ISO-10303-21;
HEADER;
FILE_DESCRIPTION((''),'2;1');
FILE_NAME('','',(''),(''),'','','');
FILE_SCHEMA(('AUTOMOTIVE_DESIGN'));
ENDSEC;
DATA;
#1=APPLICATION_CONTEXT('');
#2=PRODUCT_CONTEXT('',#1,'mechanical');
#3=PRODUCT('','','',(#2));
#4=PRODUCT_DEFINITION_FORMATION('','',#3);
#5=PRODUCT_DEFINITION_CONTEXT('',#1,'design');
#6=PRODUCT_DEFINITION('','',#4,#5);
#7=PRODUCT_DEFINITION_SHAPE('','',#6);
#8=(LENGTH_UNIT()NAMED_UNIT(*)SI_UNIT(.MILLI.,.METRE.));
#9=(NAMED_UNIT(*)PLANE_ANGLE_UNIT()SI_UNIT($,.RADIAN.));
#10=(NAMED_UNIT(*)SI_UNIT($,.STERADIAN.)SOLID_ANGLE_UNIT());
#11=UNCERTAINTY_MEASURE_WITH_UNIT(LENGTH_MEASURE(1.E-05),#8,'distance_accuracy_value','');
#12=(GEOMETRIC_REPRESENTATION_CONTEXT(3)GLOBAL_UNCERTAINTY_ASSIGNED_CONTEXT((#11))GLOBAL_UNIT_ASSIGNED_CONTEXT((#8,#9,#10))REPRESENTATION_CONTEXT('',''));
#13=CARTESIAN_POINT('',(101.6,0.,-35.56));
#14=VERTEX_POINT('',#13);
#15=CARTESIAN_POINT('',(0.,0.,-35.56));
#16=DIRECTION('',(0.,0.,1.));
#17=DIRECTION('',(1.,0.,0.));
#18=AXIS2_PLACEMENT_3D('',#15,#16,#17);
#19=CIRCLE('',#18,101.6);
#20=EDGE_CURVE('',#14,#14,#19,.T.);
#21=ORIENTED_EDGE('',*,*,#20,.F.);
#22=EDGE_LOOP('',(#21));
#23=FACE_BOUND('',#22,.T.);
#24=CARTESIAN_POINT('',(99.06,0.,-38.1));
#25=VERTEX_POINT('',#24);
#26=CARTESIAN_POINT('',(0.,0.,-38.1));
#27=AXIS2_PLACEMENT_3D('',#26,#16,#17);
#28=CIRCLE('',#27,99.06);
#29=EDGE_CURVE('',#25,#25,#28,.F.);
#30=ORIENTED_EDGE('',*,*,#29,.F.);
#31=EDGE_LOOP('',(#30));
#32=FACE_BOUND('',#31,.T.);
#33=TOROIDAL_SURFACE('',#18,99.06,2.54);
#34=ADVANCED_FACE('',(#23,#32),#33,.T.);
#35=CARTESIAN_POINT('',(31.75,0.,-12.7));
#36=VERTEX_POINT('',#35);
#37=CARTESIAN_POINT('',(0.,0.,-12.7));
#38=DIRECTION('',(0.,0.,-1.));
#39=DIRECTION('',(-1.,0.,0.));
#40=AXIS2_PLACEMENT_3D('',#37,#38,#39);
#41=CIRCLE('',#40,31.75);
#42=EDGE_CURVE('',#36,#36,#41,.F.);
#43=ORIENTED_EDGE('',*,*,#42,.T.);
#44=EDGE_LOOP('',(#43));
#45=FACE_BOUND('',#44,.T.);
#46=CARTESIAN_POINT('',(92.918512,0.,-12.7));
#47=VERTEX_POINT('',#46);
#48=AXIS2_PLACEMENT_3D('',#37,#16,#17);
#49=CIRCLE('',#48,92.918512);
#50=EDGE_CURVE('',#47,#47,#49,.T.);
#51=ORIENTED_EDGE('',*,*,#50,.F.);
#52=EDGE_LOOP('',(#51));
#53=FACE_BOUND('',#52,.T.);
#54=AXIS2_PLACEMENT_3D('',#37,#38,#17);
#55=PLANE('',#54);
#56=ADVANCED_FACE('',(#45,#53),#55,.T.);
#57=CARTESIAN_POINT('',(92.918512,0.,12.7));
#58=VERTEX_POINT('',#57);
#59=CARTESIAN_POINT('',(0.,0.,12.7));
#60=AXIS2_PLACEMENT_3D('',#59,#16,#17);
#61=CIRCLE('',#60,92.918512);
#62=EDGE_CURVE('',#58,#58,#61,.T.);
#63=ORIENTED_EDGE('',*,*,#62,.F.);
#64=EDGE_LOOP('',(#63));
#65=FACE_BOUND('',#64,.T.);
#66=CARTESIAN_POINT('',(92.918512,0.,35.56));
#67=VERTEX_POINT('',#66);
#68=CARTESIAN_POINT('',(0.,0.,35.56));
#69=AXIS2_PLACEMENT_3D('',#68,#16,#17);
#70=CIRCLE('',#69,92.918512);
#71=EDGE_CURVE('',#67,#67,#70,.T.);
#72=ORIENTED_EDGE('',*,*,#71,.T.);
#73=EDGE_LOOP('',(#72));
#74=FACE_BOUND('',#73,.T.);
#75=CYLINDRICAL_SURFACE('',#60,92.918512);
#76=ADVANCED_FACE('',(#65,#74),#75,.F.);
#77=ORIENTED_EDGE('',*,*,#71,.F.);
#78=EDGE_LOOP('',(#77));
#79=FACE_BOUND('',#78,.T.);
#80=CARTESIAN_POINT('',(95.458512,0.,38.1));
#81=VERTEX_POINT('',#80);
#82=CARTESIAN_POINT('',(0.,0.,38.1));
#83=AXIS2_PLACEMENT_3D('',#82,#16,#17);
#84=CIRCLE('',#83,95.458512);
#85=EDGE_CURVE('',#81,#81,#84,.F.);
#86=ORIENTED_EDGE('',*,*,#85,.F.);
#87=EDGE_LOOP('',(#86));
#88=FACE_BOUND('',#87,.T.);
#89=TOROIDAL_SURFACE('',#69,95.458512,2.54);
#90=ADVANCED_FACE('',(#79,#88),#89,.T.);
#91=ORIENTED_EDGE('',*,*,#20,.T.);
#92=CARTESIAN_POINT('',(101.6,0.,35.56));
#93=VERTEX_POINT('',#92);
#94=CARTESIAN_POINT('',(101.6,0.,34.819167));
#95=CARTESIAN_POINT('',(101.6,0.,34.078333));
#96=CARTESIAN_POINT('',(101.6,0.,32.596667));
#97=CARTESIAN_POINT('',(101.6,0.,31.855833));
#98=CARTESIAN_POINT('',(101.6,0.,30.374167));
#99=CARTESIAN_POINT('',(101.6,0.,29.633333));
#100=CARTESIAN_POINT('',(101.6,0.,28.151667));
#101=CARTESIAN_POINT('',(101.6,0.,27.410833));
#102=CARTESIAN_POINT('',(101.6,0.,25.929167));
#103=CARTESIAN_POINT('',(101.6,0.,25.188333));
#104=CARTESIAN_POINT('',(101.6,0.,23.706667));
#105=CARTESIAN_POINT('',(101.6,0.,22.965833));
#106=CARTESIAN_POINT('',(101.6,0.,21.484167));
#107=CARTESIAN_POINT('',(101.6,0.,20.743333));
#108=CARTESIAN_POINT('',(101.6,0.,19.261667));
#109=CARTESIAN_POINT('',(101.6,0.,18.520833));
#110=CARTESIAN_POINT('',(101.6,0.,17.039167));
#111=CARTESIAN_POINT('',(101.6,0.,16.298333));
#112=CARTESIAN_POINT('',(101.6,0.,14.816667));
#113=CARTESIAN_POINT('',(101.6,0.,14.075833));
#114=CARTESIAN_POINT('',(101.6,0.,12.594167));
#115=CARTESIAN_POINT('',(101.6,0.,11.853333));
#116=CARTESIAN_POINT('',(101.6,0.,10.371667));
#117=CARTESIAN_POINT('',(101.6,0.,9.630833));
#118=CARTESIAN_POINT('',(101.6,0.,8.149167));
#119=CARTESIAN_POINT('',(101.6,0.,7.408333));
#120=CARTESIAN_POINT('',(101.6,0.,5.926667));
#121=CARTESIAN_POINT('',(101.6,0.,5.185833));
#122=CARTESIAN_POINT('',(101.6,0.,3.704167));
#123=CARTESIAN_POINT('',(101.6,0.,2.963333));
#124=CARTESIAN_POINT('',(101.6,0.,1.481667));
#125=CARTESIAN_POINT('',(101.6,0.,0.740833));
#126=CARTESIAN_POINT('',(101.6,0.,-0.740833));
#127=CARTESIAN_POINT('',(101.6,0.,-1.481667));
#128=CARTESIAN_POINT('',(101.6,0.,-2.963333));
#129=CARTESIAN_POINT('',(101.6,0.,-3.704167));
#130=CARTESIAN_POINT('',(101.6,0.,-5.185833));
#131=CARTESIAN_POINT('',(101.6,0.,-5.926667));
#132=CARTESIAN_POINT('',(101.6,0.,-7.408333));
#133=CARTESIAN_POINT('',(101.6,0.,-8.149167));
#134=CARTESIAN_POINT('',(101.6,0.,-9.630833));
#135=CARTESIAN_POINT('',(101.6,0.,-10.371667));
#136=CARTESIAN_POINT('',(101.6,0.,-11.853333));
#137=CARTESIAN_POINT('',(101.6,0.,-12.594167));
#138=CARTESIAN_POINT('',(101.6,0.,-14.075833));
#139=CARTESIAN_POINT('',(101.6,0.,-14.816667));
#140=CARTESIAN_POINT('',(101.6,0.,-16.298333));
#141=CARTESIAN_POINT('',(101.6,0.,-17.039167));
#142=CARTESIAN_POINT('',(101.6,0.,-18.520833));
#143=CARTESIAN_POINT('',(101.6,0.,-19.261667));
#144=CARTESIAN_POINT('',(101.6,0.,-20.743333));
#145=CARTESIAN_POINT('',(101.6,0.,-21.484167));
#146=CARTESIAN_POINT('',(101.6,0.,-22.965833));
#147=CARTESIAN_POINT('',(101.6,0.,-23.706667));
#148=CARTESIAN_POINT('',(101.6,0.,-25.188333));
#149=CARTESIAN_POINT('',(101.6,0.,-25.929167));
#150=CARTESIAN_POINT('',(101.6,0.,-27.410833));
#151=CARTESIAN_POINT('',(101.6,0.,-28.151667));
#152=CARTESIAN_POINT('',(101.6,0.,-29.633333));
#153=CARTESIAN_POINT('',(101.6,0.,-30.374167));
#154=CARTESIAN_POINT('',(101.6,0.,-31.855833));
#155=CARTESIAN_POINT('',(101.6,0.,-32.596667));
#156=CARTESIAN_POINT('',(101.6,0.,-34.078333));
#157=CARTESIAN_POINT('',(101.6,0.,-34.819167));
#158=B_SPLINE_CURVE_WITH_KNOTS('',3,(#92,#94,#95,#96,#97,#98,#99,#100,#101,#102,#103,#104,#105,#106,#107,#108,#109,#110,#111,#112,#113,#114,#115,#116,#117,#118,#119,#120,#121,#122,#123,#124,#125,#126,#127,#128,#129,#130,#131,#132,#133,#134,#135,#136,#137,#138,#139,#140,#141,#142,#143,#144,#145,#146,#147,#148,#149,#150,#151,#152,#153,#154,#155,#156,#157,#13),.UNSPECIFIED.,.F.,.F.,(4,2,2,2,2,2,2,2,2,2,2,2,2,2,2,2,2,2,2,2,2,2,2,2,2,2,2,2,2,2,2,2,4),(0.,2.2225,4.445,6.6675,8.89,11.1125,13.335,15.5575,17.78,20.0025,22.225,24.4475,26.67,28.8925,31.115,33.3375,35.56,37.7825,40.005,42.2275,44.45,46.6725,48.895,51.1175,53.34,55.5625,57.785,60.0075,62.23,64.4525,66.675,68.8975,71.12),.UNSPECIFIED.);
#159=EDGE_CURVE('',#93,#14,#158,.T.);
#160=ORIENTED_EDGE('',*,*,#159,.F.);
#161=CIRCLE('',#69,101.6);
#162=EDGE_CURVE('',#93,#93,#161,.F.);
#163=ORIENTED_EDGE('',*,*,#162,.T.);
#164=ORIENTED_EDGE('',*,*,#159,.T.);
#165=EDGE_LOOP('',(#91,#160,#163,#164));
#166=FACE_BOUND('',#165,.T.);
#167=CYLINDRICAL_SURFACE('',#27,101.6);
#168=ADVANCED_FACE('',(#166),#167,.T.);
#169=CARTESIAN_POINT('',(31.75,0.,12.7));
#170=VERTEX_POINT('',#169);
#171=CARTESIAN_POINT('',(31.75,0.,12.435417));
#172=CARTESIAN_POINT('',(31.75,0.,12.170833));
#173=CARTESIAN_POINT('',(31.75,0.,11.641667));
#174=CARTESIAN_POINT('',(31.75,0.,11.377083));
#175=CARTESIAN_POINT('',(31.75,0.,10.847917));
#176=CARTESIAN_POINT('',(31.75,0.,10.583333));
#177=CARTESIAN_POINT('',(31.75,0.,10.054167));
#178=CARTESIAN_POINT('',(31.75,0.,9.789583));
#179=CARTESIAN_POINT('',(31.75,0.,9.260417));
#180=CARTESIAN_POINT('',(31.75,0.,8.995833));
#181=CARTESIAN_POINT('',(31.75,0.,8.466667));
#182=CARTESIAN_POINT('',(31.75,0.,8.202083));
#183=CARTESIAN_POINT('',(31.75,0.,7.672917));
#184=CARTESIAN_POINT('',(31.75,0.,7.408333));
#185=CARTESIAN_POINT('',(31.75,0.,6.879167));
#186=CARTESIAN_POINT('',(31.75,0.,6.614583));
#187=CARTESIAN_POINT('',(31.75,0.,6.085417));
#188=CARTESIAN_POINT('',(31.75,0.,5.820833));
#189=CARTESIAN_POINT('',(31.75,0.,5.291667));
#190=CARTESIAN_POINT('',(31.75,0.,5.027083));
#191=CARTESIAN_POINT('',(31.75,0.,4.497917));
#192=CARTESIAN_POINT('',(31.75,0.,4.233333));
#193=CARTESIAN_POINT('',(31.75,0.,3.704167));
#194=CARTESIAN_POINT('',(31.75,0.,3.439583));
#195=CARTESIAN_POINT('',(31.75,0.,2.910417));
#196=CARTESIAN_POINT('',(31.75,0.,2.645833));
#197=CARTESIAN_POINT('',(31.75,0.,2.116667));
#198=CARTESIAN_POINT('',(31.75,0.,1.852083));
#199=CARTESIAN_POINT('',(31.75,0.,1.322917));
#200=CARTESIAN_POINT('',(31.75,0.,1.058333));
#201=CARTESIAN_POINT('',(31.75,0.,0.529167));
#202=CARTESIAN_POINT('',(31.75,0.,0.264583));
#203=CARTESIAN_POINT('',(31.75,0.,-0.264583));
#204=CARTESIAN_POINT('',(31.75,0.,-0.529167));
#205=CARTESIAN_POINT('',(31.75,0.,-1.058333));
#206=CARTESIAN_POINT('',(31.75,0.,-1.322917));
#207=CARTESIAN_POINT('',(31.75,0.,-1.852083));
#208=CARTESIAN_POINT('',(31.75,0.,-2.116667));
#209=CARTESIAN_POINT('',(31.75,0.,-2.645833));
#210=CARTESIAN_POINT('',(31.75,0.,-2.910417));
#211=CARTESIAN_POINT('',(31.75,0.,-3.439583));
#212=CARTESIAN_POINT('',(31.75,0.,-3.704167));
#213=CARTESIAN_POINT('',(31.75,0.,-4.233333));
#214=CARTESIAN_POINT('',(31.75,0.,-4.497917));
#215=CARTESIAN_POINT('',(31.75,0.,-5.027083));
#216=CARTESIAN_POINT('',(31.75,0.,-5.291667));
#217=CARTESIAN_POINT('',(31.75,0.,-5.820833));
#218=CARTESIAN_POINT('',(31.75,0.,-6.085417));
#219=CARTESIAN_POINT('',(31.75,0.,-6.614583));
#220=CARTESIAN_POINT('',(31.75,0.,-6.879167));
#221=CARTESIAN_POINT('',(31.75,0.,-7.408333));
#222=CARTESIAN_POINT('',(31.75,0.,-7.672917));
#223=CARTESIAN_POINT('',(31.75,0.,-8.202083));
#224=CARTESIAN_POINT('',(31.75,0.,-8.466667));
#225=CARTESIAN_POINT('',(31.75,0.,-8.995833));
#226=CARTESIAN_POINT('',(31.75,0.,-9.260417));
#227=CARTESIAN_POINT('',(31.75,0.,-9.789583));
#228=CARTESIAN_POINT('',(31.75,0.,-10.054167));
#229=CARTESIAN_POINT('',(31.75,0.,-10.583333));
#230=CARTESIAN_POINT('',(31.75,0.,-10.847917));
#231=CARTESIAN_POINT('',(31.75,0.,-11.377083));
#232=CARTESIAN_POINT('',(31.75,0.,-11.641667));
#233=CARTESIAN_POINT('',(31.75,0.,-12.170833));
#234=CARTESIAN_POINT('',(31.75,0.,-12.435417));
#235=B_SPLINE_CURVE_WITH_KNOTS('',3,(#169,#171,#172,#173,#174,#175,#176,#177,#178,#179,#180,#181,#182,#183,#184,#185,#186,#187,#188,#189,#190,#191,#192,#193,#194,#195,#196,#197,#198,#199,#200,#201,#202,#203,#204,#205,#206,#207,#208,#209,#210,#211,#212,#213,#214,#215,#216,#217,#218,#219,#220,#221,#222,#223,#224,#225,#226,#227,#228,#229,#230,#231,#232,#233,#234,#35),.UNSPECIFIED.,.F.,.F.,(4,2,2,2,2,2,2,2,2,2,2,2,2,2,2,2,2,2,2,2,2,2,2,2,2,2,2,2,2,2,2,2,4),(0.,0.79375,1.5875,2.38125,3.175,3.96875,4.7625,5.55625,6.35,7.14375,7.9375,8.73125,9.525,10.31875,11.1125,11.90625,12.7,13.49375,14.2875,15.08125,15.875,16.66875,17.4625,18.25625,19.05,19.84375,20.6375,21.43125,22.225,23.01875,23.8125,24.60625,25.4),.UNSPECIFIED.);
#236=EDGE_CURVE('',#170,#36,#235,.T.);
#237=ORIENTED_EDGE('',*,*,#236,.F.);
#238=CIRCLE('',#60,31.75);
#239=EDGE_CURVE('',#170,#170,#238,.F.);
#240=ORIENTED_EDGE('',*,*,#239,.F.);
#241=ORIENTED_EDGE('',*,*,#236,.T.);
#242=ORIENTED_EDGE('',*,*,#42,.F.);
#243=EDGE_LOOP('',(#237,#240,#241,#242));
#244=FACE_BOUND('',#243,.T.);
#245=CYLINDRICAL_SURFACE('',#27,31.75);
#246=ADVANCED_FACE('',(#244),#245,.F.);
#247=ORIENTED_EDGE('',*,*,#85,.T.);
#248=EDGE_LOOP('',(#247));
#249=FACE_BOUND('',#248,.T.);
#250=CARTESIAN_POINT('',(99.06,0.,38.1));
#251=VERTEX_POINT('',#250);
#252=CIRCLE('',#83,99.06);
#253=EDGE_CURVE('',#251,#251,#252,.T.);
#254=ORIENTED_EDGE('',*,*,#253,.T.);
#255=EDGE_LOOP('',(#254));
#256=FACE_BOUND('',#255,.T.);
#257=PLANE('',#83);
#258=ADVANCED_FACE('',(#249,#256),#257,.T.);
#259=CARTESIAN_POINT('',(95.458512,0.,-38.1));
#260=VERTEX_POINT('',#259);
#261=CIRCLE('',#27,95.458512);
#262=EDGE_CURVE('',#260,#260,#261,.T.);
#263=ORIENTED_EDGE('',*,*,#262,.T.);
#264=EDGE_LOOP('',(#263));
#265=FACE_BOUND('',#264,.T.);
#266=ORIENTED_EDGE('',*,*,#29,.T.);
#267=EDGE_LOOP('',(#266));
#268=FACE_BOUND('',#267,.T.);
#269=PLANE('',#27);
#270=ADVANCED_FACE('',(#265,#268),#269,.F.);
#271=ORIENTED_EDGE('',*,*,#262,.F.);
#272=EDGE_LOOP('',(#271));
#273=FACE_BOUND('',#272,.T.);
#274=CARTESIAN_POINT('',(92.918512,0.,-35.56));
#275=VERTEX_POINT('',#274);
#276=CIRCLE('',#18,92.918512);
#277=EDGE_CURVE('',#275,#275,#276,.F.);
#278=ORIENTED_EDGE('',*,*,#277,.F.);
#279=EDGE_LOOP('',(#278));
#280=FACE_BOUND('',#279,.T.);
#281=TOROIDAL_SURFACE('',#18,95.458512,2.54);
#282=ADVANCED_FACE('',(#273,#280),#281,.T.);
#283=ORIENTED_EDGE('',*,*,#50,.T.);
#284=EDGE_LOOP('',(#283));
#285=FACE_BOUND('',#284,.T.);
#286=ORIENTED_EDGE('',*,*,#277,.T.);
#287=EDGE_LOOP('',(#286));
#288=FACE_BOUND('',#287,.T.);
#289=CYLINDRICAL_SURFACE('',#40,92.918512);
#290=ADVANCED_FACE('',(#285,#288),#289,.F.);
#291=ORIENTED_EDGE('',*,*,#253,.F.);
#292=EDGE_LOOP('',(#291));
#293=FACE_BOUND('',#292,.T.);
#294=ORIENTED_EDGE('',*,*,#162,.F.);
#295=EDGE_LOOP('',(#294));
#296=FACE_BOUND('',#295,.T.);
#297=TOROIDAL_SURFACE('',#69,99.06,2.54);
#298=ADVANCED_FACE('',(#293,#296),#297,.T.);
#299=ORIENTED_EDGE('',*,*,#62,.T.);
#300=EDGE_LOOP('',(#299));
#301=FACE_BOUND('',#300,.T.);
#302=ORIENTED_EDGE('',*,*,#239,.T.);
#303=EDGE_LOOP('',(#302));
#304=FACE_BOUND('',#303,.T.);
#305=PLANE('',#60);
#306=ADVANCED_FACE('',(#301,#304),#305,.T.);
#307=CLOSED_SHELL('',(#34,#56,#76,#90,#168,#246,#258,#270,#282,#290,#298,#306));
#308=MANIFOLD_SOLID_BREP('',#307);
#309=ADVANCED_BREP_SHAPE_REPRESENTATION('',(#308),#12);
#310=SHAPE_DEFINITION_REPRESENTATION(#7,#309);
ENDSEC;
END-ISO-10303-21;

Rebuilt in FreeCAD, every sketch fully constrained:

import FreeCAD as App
import Part
import Sketcher
from FreeCAD import Vector
Q = App.Units.Quantity


def edges_at(feature, points):
    """Names of the edges that pass closest to the given points."""
    edges = feature.Shape.Edges
    near = lambda p: min(range(len(edges)), key=lambda i: edges[i].distToShape(Part.Vertex(*p))[0])
    return sorted({f"Edge{near(p) + 1}" for p in points})

doc = App.newDocument("Part")
body = doc.addObject("PartDesign::Body", "Body")

# Sketch on XY plane
sketch1 = body.newObject("Sketcher::SketchObject", "Sketch")
sketch1.AttachmentSupport = (doc.getObject("XY_Plane"), [""])
sketch1.MapMode = "FlatFace"
sketch1.addGeometry([
    Part.Circle(Vector(0, 0, 0), Vector(0, 0, 1), 102),
    Part.Circle(Vector(0, 0, 0), Vector(0, 0, 1), 32),
], False)
sketch1.addConstraint([
    Sketcher.Constraint("Coincident", 0, 3, -1, 1),
    Sketcher.Constraint("Coincident", 1, 3, -1, 1),
    Sketcher.Constraint("Diameter", 0, Q("8 in")),
    Sketcher.Constraint("Diameter", 1, Q("2.5 in")),
])
pad1 = body.newObject("PartDesign::Pad", "Pad")
pad1.Profile = sketch1
pad1.Length = Q("3 in")
pad1.Midplane = True

# Sketch on XY plane
sketch2 = body.newObject("Sketcher::SketchObject", "Sketch001")
sketch2.AttachmentSupport = (doc.getObject("XY_Plane"), [""])
sketch2.MapMode = "FlatFace"
sketch2.AttachmentOffset = App.Placement(Vector(0, 0, 1.5 * 25.4), App.Rotation())
sketch2.addGeometry(Part.Circle(Vector(0, 0, 0), Vector(0, 0, 1), 93), False)
sketch2.addConstraint([
    Sketcher.Constraint("Coincident", 0, 3, -1, 1),
    Sketcher.Constraint("Diameter", 0, Q("185.837023 mm")),
])
pocket1 = body.newObject("PartDesign::Pocket", "Pocket")
pocket1.Profile = sketch2
pocket1.Length = Q("1 in")
doc.recompute()

mirrored = body.newObject("PartDesign::Mirrored", "Mirrored")
mirrored.Originals = [pocket1]
mirrored.MirrorPlane = (doc.getObject("XY_Plane"), [""])
body.Tip = mirrored
doc.recompute()

fillet = body.newObject("PartDesign::Fillet", "Fillet")
fillet.Base = (mirrored, edges_at(mirrored, [(-92.919, 0, -38.1), (-101.6, 0, -38.1)]))
fillet.Radius = Q("0.1 in")
doc.recompute()

fillet2 = body.newObject("PartDesign::Fillet", "Fillet001")
fillet2.Base = (fillet, edges_at(fillet, [(-92.919, 0, 38.1), (-101.6, 0, 38.1)]))
fillet2.Radius = Q("0.1 in")

doc.recompute()
